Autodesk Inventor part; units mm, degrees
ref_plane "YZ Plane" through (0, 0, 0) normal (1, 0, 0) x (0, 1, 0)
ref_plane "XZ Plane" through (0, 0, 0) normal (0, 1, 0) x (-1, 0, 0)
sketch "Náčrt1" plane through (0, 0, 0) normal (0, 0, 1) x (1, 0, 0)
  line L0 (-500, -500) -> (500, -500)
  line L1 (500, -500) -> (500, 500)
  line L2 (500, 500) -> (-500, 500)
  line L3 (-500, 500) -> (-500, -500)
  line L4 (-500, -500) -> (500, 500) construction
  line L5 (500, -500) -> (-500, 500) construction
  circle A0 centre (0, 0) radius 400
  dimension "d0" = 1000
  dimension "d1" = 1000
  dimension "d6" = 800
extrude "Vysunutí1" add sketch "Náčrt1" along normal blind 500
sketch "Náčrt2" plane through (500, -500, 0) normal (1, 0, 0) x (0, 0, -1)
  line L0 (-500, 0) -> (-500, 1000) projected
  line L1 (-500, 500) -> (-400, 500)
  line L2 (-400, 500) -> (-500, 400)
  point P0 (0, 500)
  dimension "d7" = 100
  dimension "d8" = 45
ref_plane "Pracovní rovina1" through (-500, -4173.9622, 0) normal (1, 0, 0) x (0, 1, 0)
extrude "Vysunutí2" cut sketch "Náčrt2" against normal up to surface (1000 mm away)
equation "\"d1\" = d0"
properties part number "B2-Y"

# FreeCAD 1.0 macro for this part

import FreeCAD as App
import Part
import Sketcher
Q = App.Units.Quantity


def add_polygon(sketch, points):
    """Adds a closed chain of lines whose ends are joined by coincident constraints."""
    first, n = sketch.GeometryCount, len(points)
    for a, b in zip(points, points[1:] + points[:1]):
        sketch.addGeometry(Part.LineSegment(App.Vector(*a, 0), App.Vector(*b, 0)), False)
    for i in range(n):
        sketch.addConstraint(Sketcher.Constraint("Coincident", first + i, 2, first + (i + 1) % n, 1))

doc = App.newDocument("Part")
body = doc.addObject("PartDesign::Body", "Body")

# Sketch on XY plane
sketch1 = body.newObject("Sketcher::SketchObject", "Sketch")
sketch1.AttachmentSupport = (doc.getObject("XY_Plane"), [""])
sketch1.MapMode = "FlatFace"
add_polygon(sketch1, [(-500, 500), (-500, -500), (500, -500), (500, 500)])  # lines 0-3
sketch1.addGeometry(Part.Circle(App.Vector(0, 0, 0), App.Vector(0, 0, 1), 400), False)  # 4
sketch1.addConstraint([
    Sketcher.Constraint("Vertical", 0),
    Sketcher.Constraint("Horizontal", 1),
    Sketcher.Constraint("Vertical", 2),
    Sketcher.Constraint("Horizontal", 3),
    Sketcher.Constraint("Coincident", 4, 3, -1, 1),
    Sketcher.Constraint("Symmetric", 0, 2, 2, 2, -1, 1),
    Sketcher.Constraint("Equal", 3, 0),
    Sketcher.Constraint("Diameter", 4, Q("800 mm")),
    Sketcher.Constraint("DistanceX", 1, 1, 1, 2, Q("1000 mm")),
])
pad1 = body.newObject("PartDesign::Pad", "Pad")
pad1.Profile = sketch1
pad1.Length = 500

# Sketch on YZ plane
sketch2 = body.newObject("Sketcher::SketchObject", "Sketch001")
sketch2.AttachmentSupport = (doc.getObject("YZ_Plane"), [""])
sketch2.MapMode = "FlatFace"
sketch2.AttachmentOffset = App.Placement(App.Vector(0, 0, 500), App.Rotation())
add_polygon(sketch2, [(0, 500), (-100, 500), (0, 400)])  # lines 0-2
sketch2.addConstraint([
    Sketcher.Constraint("Horizontal", 0),
    Sketcher.Constraint("Vertical", 2),
    Sketcher.Constraint("PointOnObject", 1, 2, -2),
    Sketcher.Constraint("Equal", 0, 2),
    Sketcher.Constraint("DistanceX", 0, 2, 0, 1, Q("100 mm")),
    Sketcher.Constraint("DistanceY", -1, 1, 0, 2, Q("500 mm")),
])
pocket1 = body.newObject("PartDesign::Pocket", "Pocket")
pocket1.Profile = sketch2
pocket1.Length = 1000

doc.recompute()
